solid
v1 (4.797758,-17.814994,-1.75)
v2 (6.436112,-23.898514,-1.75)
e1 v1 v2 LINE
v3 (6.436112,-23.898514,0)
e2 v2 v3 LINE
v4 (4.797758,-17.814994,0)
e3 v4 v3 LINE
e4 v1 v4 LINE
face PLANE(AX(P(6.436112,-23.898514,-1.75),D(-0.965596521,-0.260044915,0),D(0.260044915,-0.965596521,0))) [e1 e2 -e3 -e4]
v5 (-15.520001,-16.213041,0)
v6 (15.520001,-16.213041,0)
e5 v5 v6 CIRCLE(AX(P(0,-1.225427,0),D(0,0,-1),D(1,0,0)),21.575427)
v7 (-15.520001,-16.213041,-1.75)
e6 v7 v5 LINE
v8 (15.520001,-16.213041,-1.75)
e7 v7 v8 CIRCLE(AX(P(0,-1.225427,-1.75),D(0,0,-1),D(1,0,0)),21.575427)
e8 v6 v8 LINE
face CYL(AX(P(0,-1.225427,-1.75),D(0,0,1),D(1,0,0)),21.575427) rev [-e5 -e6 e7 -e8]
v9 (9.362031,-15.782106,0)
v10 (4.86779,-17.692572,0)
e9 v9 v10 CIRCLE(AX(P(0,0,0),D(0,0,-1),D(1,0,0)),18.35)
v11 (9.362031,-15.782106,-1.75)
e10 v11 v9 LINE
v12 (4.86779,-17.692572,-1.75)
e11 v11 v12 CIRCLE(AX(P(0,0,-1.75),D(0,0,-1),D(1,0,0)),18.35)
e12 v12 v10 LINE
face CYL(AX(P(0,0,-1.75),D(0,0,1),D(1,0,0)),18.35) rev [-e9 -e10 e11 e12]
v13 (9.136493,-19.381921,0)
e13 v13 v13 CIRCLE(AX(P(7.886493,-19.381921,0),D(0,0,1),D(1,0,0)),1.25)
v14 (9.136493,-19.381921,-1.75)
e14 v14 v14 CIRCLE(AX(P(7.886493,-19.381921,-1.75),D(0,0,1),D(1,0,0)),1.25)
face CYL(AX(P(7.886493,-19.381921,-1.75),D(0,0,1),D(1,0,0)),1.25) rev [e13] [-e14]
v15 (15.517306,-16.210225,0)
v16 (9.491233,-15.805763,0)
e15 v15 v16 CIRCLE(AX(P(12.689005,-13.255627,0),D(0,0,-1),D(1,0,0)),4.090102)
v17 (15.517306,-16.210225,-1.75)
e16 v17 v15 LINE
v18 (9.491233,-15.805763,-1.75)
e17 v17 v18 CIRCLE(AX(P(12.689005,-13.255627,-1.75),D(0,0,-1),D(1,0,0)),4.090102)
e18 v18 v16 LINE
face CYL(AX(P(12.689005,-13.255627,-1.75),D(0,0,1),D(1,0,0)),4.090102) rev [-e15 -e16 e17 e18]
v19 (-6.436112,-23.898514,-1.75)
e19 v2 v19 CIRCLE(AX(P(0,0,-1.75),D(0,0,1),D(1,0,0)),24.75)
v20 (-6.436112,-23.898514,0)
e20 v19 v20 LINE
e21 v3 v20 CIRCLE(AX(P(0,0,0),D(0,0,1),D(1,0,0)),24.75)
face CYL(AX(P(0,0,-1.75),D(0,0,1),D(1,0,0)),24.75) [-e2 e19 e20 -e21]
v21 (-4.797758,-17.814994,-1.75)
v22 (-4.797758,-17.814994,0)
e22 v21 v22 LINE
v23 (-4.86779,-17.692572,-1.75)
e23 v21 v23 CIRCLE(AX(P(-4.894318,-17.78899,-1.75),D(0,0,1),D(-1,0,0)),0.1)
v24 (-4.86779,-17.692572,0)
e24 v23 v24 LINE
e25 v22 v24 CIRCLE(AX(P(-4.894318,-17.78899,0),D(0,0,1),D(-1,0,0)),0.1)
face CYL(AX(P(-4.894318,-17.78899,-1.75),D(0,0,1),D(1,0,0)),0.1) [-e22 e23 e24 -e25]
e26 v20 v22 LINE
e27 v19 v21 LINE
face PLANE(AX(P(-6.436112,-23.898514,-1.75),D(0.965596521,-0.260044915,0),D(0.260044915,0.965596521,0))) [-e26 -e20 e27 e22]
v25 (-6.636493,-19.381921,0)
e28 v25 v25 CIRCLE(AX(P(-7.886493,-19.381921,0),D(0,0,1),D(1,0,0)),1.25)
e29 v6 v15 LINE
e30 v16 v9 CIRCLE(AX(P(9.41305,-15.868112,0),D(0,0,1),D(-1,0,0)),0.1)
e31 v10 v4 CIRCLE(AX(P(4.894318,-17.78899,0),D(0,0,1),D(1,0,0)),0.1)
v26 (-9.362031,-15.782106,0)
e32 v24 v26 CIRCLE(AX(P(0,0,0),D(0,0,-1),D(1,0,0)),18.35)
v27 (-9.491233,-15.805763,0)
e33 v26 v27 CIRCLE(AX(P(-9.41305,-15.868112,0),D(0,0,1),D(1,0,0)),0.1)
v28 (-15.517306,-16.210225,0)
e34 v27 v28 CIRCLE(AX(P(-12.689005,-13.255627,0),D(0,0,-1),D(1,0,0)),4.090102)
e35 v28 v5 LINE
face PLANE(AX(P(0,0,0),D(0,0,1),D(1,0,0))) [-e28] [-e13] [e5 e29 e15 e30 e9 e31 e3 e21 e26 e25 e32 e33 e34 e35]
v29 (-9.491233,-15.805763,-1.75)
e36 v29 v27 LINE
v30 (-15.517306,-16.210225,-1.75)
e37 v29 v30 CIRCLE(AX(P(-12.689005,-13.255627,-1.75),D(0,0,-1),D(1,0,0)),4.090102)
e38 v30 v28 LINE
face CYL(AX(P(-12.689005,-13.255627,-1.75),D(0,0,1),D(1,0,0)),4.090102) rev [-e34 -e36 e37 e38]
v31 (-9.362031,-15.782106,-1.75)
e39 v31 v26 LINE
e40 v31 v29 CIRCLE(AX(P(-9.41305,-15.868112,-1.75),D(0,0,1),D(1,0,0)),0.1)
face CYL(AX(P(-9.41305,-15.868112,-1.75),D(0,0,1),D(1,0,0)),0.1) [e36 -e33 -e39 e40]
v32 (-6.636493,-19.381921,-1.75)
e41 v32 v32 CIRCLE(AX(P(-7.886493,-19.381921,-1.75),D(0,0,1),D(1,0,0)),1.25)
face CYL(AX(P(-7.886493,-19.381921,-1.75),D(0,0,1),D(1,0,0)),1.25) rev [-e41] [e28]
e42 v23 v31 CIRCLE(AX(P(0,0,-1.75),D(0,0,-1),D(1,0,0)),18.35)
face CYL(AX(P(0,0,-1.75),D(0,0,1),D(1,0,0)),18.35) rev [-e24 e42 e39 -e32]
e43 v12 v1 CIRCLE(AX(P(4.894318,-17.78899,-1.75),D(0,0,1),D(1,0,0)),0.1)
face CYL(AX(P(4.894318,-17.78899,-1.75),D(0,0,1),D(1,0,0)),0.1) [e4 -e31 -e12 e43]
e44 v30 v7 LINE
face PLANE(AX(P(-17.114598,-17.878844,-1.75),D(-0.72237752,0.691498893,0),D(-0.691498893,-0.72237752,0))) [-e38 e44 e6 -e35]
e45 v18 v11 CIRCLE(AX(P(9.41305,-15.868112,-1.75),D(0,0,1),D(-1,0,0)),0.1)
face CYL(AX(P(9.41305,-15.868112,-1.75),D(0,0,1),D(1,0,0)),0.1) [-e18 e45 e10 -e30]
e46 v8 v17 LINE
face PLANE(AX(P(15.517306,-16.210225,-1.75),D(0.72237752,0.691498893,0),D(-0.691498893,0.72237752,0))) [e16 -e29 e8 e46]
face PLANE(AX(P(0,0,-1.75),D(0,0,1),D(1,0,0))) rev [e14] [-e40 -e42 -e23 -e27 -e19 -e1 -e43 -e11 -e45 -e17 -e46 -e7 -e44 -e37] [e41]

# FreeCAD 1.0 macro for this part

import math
import FreeCAD as App
import Part
import Sketcher
from FreeCAD import Vector
Q = App.Units.Quantity

doc = App.newDocument("Part")
body = doc.addObject("PartDesign::Body", "Body")

sketch1 = body.newObject("Sketcher::SketchObject", "Sketch")
sketch1.AttachmentSupport = (doc.getObject("XY_Plane"), [""])
sketch1.MapMode = "FlatFace"
sketch1.addGeometry(Part.LineSegment(Vector(5.4, -20.1, 0), Vector(6.4, -23.9, 0)), False)
sketch1.addGeometry(Part.ArcOfCircle(Part.Circle(Vector(0, 0, 0), Vector(0, 0, 1), 24.8), math.radians(-75), math.radians(255)), False)
sketch1.addGeometry(Part.LineSegment(Vector(-6.4, -23.9, 0), Vector(-5.4, -20.1, 0)), False)
sketch1.addGeometry(Part.ArcOfCircle(Part.Circle(Vector(-7.9, -19.4, 0), Vector(0, 0, 1), 2.6), math.radians(-15), math.radians(140)), False)
sketch1.addGeometry(Part.ArcOfCircle(Part.Circle(Vector(-11.8, -16.1, 0), Vector(0, 0, 1), 2.6), math.radians(-129), math.radians(-40)), False)
sketch1.addGeometry(Part.ArcOfCircle(Part.Circle(Vector(0, -1.2, 0), Vector(0, 0, 1), 21.6), math.radians(-51), math.radians(231)), False)
sketch1.addGeometry(Part.ArcOfCircle(Part.Circle(Vector(11.8, -16.1, 0), Vector(0, 0, 1), 2.6), math.radians(-140), math.radians(-51)), False)
sketch1.addGeometry(Part.ArcOfCircle(Part.Circle(Vector(7.9, -19.4, 0), Vector(0, 0, 1), 2.6), math.radians(40), math.radians(195)), False)
sketch1.addGeometry(Part.Circle(Vector(7.9, -19.4, 0), Vector(0, 0, 1), 1.2), False)
sketch1.addGeometry(Part.Circle(Vector(-7.9, -19.4, 0), Vector(0, 0, 1), 1.2), False)
sketch1.addConstraint(Sketcher.Constraint("Coincident", 0, 2, 1, 1))
sketch1.addConstraint(Sketcher.Constraint("Coincident", 1, 2, 2, 1))
sketch1.addConstraint(Sketcher.Constraint("Tangent", 2, 2, 3, 1))
sketch1.addConstraint(Sketcher.Constraint("Tangent", 3, 2, 4, 2))
sketch1.addConstraint(Sketcher.Constraint("Tangent", 4, 1, 5, 2))
sketch1.addConstraint(Sketcher.Constraint("Tangent", 5, 1, 6, 2))
sketch1.addConstraint(Sketcher.Constraint("Tangent", 6, 1, 7, 1))
sketch1.addConstraint(Sketcher.Constraint("Tangent", 7, 2, 0, 1))
sketch1.addConstraint(Sketcher.Constraint("Coincident", 1, 3, -1, 1))
sketch1.addConstraint(Sketcher.Constraint("Coincident", 8, 3, 7, 3))
sketch1.addConstraint(Sketcher.Constraint("Coincident", 9, 3, 3, 3))
sketch1.addConstraint(Sketcher.Constraint("Equal", 3, 4))
sketch1.addConstraint(Sketcher.Constraint("Equal", 4, 6))
sketch1.addConstraint(Sketcher.Constraint("Equal", 6, 7))
sketch1.addConstraint(Sketcher.Constraint("Equal", 8, 9))
sketch1.addConstraint(Sketcher.Constraint("Symmetric", 4, 3, 6, 3, -2))
sketch1.addConstraint(Sketcher.Constraint("Symmetric", 2, 2, 7, 2, -2))
sketch1.addConstraint(Sketcher.Constraint("Diameter", 8, Q("2.5 mm")))
sketch1.addConstraint(Sketcher.Constraint("Radius", 1, Q("24.75 mm")))
sketch1.addConstraint(Sketcher.Constraint("Radius", 3, Q("2.575 mm")))
sketch1.addConstraint(Sketcher.Constraint("Radius", 5, Q("21.575427 mm")))
sketch1.addConstraint(Sketcher.Constraint("DistanceY", 3, 3, -1, 1, Q("19.381921 mm")))
sketch1.addConstraint(Sketcher.Constraint("DistanceY", 4, 3, -1, 1, Q("16.084111 mm")))
sketch1.addConstraint(Sketcher.Constraint("DistanceX", -1, 1, 0, 2, Q("6.436112 mm")))
sketch1.addConstraint(Sketcher.Constraint("DistanceX", 2, 2, -1, 1, Q("5.400082 mm")))
pad1 = body.newObject("PartDesign::Pad", "Pad")
pad1.Profile = sketch1
pad1.Length = 1.75
pad1.Reversed = True

sketch2 = body.newObject("Sketcher::SketchObject", "Sketch001")
sketch2.AttachmentSupport = (doc.getObject("XY_Plane"), [""])
sketch2.MapMode = "FlatFace"
sketch2.addGeometry(Part.LineSegment(Vector(4.8, -17.81, 0), Vector(6.44, -23.9, 0)), False)
sketch2.addGeometry(Part.ArcOfCircle(Part.Circle(Vector(0, 0, 0), Vector(0, 0, 1), 24.75), math.radians(-75), math.radians(-46)), False)
sketch2.addGeometry(Part.LineSegment(Vector(17.11, -17.88, 0), Vector(15.52, -16.21, 0)), False)
sketch2.addGeometry(Part.ArcOfCircle(Part.Circle(Vector(12.69, -13.26, 0), Vector(0, 0, 1), 4.09), math.radians(-141), math.radians(-46)), False)
sketch2.addGeometry(Part.ArcOfCircle(Part.Circle(Vector(9.41, -15.87, 0), Vector(0, 0, 1), 0.1), math.radians(39), math.radians(121)), False)
sketch2.addGeometry(Part.ArcOfCircle(Part.Circle(Vector(0, 0, 0), Vector(0, 0, 1), 18.35), math.radians(-74.62), math.radians(-59.32)), False)
sketch2.addGeometry(Part.ArcOfCircle(Part.Circle(Vector(4.89, -17.79, 0), Vector(0, 0, 1), 0.1), math.radians(105), math.radians(195)), False)
sketch2.addGeometry(Part.Circle(Vector(7.89, -19.38, 0), Vector(0, 0, 1), 1.25), False)
sketch2.addGeometry(Part.LineSegment(Vector(-6.44, -23.9, 0), Vector(-4.8, -17.81, 0)), False)
sketch2.addGeometry(Part.ArcOfCircle(Part.Circle(Vector(-4.89, -17.79, 0), Vector(0, 0, 1), 0.1), math.radians(-15), math.radians(75)), False)
sketch2.addGeometry(Part.ArcOfCircle(Part.Circle(Vector(0, 0, 0), Vector(0, 0, 1), 18.35), math.radians(-120.68), math.radians(-105.38)), False)
sketch2.addGeometry(Part.ArcOfCircle(Part.Circle(Vector(-9.41, -15.87, 0), Vector(0, 0, 1), 0.1), math.radians(59), math.radians(141)), False)
sketch2.addGeometry(Part.ArcOfCircle(Part.Circle(Vector(-12.69, -13.26, 0), Vector(0, 0, 1), 4.09), math.radians(-134), math.radians(-39)), False)
sketch2.addGeometry(Part.LineSegment(Vector(-15.52, -16.21, 0), Vector(-17.11, -17.88, 0)), False)
sketch2.addGeometry(Part.ArcOfCircle(Part.Circle(Vector(0, 0, 0), Vector(0, 0, 1), 24.75), math.radians(-134), math.radians(-105)), False)
sketch2.addGeometry(Part.Circle(Vector(-7.89, -19.38, 0), Vector(0, 0, 1), 1.25), False)
sketch2.addConstraint(Sketcher.Constraint("Coincident", 0, 2, 1, 1))
sketch2.addConstraint(Sketcher.Constraint("Coincident", 1, 2, 2, 1))
sketch2.addConstraint(Sketcher.Constraint("Coincident", 2, 2, 3, 2))
sketch2.addConstraint(Sketcher.Constraint("Tangent", 3, 1, 4, 1))
sketch2.addConstraint(Sketcher.Constraint("Tangent", 4, 2, 5, 2))
sketch2.addConstraint(Sketcher.Constraint("Tangent", 5, 1, 6, 1))
sketch2.addConstraint(Sketcher.Constraint("Tangent", 6, 2, 0, 1))
sketch2.addConstraint(Sketcher.Constraint("Tangent", 8, 2, 9, 1))
sketch2.addConstraint(Sketcher.Constraint("Tangent", 9, 2, 10, 2))
sketch2.addConstraint(Sketcher.Constraint("Tangent", 10, 1, 11, 1))
sketch2.addConstraint(Sketcher.Constraint("Tangent", 11, 2, 12, 2))
sketch2.addConstraint(Sketcher.Constraint("Coincident", 12, 1, 13, 1))
sketch2.addConstraint(Sketcher.Constraint("Coincident", 13, 2, 14, 1))
sketch2.addConstraint(Sketcher.Constraint("Coincident", 14, 2, 8, 1))
sketch2.addConstraint(Sketcher.Constraint("Coincident", 1, 3, -1, 1))
sketch2.addConstraint(Sketcher.Constraint("Coincident", 5, 3, -1, 1))
sketch2.addConstraint(Sketcher.Constraint("Coincident", 10, 3, -1, 1))
sketch2.addConstraint(Sketcher.Constraint("Coincident", 14, 3, -1, 1))
sketch2.addConstraint(Sketcher.Constraint("Equal", 4, 6))
sketch2.addConstraint(Sketcher.Constraint("Equal", 6, 9))
sketch2.addConstraint(Sketcher.Constraint("Equal", 5, 10))
sketch2.addConstraint(Sketcher.Constraint("Equal", 9, 11))
sketch2.addConstraint(Sketcher.Constraint("Equal", 3, 12))
sketch2.addConstraint(Sketcher.Constraint("Equal", 1, 14))
sketch2.addConstraint(Sketcher.Constraint("Equal", 7, 15))
sketch2.addConstraint(Sketcher.Constraint("Symmetric", 3, 3, 12, 3, -2))
sketch2.addConstraint(Sketcher.Constraint("Symmetric", 7, 3, 15, 3, -2))
sketch2.addConstraint(Sketcher.Constraint("Symmetric", 6, 2, 8, 2, -2))
sketch2.addConstraint(Sketcher.Constraint("Horizontal", 2, 2, 12, 1))
sketch2.addConstraint(Sketcher.Constraint("Horizontal", 1, 2, 13, 2))
sketch2.addConstraint(Sketcher.Constraint("Diameter", 7, Q("2.5 mm")))
sketch2.addConstraint(Sketcher.Constraint("Radius", 4, Q("0.1 mm")))
sketch2.addConstraint(Sketcher.Constraint("Radius", 1, Q("24.75 mm")))
sketch2.addConstraint(Sketcher.Constraint("Radius", 5, Q("18.35 mm")))
sketch2.addConstraint(Sketcher.Constraint("Radius", 3, Q("4.090102 mm")))
sketch2.addConstraint(Sketcher.Constraint("Distance", 2, Q("2.309898 mm")))
sketch2.addConstraint(Sketcher.Constraint("DistanceY", 0, 2, 4, 3, Q("8.030402 mm")))
sketch2.addConstraint(Sketcher.Constraint("DistanceX", 3, 3, 2, 2, Q("2.828301 mm")))
sketch2.addConstraint(Sketcher.Constraint("Distance", 0, Q("6.300271 mm")))
sketch2.addConstraint(Sketcher.Constraint("DistanceX", -1, 1, 4, 3, Q("9.41305 mm")))
sketch2.addConstraint(Sketcher.Constraint("DistanceY", 7, 3, -1, 1, Q("19.381921 mm")))
sketch2.addConstraint(Sketcher.Constraint("DistanceX", 7, 3, 3, 3, Q("4.802512 mm")))
sketch2.addConstraint(Sketcher.Constraint("DistanceY", 1, 2, 4, 3, Q("2.010731 mm")))
pad2 = body.newObject("PartDesign::Pad", "Pad001")
pad2.Profile = sketch2
pad2.Length = 1.75
pad2.Reversed = True

doc.recompute()
